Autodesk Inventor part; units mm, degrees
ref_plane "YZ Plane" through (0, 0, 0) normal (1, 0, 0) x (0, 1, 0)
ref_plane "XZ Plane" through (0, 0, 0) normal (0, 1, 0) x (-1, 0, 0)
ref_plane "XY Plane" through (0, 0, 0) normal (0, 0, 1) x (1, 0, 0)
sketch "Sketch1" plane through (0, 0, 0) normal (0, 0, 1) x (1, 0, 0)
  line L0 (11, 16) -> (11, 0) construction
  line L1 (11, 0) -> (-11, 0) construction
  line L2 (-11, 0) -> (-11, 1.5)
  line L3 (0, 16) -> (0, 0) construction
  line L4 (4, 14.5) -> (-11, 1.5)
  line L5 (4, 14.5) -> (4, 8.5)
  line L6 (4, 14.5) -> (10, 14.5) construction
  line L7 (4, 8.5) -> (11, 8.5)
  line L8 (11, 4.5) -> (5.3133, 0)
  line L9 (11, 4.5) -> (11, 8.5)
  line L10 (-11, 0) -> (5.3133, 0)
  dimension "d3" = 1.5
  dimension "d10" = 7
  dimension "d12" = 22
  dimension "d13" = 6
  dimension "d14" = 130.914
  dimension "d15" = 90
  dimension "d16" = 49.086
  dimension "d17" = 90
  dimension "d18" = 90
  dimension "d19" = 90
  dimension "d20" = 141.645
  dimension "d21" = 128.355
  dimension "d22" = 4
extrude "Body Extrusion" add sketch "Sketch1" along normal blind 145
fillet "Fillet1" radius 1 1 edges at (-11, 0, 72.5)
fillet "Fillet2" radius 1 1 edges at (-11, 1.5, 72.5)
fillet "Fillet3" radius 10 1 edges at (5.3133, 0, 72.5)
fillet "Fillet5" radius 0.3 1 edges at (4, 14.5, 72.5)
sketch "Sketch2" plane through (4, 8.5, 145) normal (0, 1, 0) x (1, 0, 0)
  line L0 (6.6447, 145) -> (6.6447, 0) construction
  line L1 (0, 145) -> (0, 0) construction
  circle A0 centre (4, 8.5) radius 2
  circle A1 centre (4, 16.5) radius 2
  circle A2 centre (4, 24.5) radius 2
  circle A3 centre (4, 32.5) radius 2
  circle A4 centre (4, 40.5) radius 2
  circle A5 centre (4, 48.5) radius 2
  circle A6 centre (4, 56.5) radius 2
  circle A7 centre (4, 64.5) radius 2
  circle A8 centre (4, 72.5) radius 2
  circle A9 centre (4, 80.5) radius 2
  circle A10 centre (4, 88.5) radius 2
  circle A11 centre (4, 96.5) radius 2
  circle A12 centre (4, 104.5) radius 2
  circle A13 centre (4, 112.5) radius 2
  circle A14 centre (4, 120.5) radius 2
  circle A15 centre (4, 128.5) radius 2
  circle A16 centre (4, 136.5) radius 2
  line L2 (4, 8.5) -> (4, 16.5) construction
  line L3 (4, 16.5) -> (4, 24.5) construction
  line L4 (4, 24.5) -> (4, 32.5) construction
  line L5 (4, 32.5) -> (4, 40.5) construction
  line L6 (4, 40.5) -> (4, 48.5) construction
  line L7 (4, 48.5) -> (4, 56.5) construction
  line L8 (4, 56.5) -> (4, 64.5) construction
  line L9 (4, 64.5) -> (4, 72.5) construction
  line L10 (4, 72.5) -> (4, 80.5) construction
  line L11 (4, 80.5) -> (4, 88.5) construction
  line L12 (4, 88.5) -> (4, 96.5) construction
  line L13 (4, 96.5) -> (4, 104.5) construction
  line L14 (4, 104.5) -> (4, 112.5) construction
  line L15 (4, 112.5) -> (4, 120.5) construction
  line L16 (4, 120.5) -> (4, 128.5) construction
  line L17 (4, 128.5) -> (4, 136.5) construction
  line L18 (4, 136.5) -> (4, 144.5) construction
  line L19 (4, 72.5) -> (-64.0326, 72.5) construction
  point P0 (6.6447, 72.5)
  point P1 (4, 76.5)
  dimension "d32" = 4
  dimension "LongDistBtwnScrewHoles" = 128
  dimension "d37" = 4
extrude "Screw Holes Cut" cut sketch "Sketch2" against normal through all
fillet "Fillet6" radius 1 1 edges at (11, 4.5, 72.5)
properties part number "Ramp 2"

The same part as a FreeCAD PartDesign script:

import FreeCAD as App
import Part
import Sketcher

V = App.Vector
Q = App.Units.Quantity


def edges_at(feature, points):
    """Names of the edges that pass closest to the given points."""
    edges = feature.Shape.Edges
    near = lambda p: min(range(len(edges)), key=lambda i: edges[i].distToShape(Part.Vertex(*p))[0])
    return sorted({f"Edge{near(p) + 1}" for p in points})

doc = App.newDocument("Part")
body = doc.addObject("PartDesign::Body", "Body")

# Sketch on XY plane
sketch1 = body.newObject("Sketcher::SketchObject", "Sketch")
sketch1.AttachmentSupport = (doc.getObject("XY_Plane"), [""])
sketch1.MapMode = "FlatFace"
sketch1.addGeometry([
    Part.LineSegment(V(-11, 1.5, 0), V(-11, 0, 0)),  # 0
    Part.LineSegment(V(-11, 0, 0), V(5.3, 0, 0)),  # 1
    Part.LineSegment(V(5.3, 0, 0), V(11, 4.5, 0)),  # 2
    Part.LineSegment(V(11, 4.5, 0), V(11, 8.5, 0)),  # 3
    Part.LineSegment(V(11, 8.5, 0), V(4, 8.5, 0)),  # 4
    Part.LineSegment(V(4, 8.5, 0), V(4, 14.5, 0)),  # 5
    Part.LineSegment(V(4, 14.5, 0), V(-11, 1.5, 0)),  # 6
], False)
sketch1.addConstraint([
    Sketcher.Constraint("Coincident", 0, 2, 1, 1),
    Sketcher.Constraint("Coincident", 1, 2, 2, 1),
    Sketcher.Constraint("Coincident", 2, 2, 3, 1),
    Sketcher.Constraint("Coincident", 3, 2, 4, 1),
    Sketcher.Constraint("Coincident", 4, 2, 5, 1),
    Sketcher.Constraint("Coincident", 5, 2, 6, 1),
    Sketcher.Constraint("Coincident", 6, 2, 0, 1),
    Sketcher.Constraint("Vertical", 0),
    Sketcher.Constraint("Horizontal", 1),
    Sketcher.Constraint("Vertical", 3),
    Sketcher.Constraint("Horizontal", 4),
    Sketcher.Constraint("Vertical", 5),
    Sketcher.Constraint("PointOnObject", 0, 2, -1),
    Sketcher.Constraint("DistanceX", 4, 2, 4, 1, Q("7 mm")),
    Sketcher.Constraint("DistanceY", 3, 1, 3, 2, Q("4 mm")),
    Sketcher.Constraint("DistanceY", 5, 1, 5, 2, Q("6 mm")),
    Sketcher.Constraint("DistanceY", 0, 2, 0, 1, Q("1.5 mm")),
    Sketcher.Constraint("DistanceX", -1, 1, 4, 2, Q("4 mm")),
    Sketcher.Constraint("DistanceX", 0, 2, 2, 2, Q("22 mm")),
    Sketcher.Constraint("DistanceY", 6, 2, 4, 2, Q("7 mm")),
    Sketcher.Constraint("DistanceX", 1, 1, 1, 2, Q("16.3133 mm")),
])
pad1 = body.newObject("PartDesign::Pad", "Pad")
pad1.Profile = sketch1
pad1.Length = 145
doc.recompute()

fillet = body.newObject("PartDesign::Fillet", "Fillet")
fillet.Base = (pad1, edges_at(pad1, [(-11, 0, 72.5)]))
fillet.Radius = 1
doc.recompute()

fillet2 = body.newObject("PartDesign::Fillet", "Fillet001")
fillet2.Base = (fillet, edges_at(fillet, [(-11, 1.5, 72.5)]))
fillet2.Radius = 1
doc.recompute()

fillet3 = body.newObject("PartDesign::Fillet", "Fillet002")
fillet3.Base = (fillet2, edges_at(fillet2, [(5.313, 0, 72.5)]))
fillet3.Radius = 10
doc.recompute()

fillet4 = body.newObject("PartDesign::Fillet", "Fillet003")
fillet4.Base = (fillet3, edges_at(fillet3, [(4, 14.5, 72.5)]))
fillet4.Radius = 0.3

# Sketch on XZ plane
sketch2 = body.newObject("Sketcher::SketchObject", "Sketch001")
sketch2.AttachmentSupport = (doc.getObject("XZ_Plane"), [""])
sketch2.MapMode = "FlatFace"
sketch2.AttachmentOffset = App.Placement(V(0, 0, -8.5), App.Rotation())
sketch2.addGeometry([
    Part.Circle(V(8, 136.5, 0), V(0, 0, 1), 2),  # 0
    Part.Circle(V(8, 128.5, 0), V(0, 0, 1), 2),  # 1
    Part.Circle(V(8, 120.5, 0), V(0, 0, 1), 2),  # 2
    Part.Circle(V(8, 112.5, 0), V(0, 0, 1), 2),  # 3
    Part.Circle(V(8, 104.5, 0), V(0, 0, 1), 2),  # 4
    Part.Circle(V(8, 96.5, 0), V(0, 0, 1), 2),  # 5
    Part.Circle(V(8, 88.5, 0), V(0, 0, 1), 2),  # 6
    Part.Circle(V(8, 80.5, 0), V(0, 0, 1), 2),  # 7
    Part.Circle(V(8, 72.5, 0), V(0, 0, 1), 2),  # 8
    Part.Circle(V(8, 64.5, 0), V(0, 0, 1), 2),  # 9
    Part.Circle(V(8, 56.5, 0), V(0, 0, 1), 2),  # 10
    Part.Circle(V(8, 48.5, 0), V(0, 0, 1), 2),  # 11
    Part.Circle(V(8, 40.5, 0), V(0, 0, 1), 2),  # 12
    Part.Circle(V(8, 32.5, 0), V(0, 0, 1), 2),  # 13
    Part.Circle(V(8, 24.5, 0), V(0, 0, 1), 2),  # 14
    Part.Circle(V(8, 16.5, 0), V(0, 0, 1), 2),  # 15
    Part.Circle(V(8, 8.5, 0), V(0, 0, 1), 2),  # 16
], False)
sketch2.addConstraint([
    Sketcher.Constraint("Equal", 0, 1),
    Sketcher.Constraint("Equal", 1, 2),
    Sketcher.Constraint("Equal", 2, 3),
    Sketcher.Constraint("Equal", 3, 4),
    Sketcher.Constraint("Equal", 4, 5),
    Sketcher.Constraint("Equal", 5, 6),
    Sketcher.Constraint("Equal", 6, 7),
    Sketcher.Constraint("Equal", 7, 8),
    Sketcher.Constraint("Equal", 8, 9),
    Sketcher.Constraint("Equal", 9, 10),
    Sketcher.Constraint("Equal", 10, 11),
    Sketcher.Constraint("Equal", 11, 12),
    Sketcher.Constraint("Equal", 12, 13),
    Sketcher.Constraint("Equal", 13, 14),
    Sketcher.Constraint("Equal", 14, 15),
    Sketcher.Constraint("Equal", 15, 16),
    Sketcher.Constraint("Vertical", 0, 3, 1, 3),
    Sketcher.Constraint("Vertical", 1, 3, 2, 3),
    Sketcher.Constraint("Vertical", 2, 3, 3, 3),
    Sketcher.Constraint("Vertical", 3, 3, 4, 3),
    Sketcher.Constraint("Vertical", 4, 3, 5, 3),
    Sketcher.Constraint("Vertical", 5, 3, 6, 3),
    Sketcher.Constraint("Vertical", 6, 3, 7, 3),
    Sketcher.Constraint("Vertical", 7, 3, 8, 3),
    Sketcher.Constraint("Vertical", 8, 3, 9, 3),
    Sketcher.Constraint("Vertical", 9, 3, 10, 3),
    Sketcher.Constraint("Vertical", 10, 3, 11, 3),
    Sketcher.Constraint("Vertical", 11, 3, 12, 3),
    Sketcher.Constraint("Vertical", 12, 3, 13, 3),
    Sketcher.Constraint("Vertical", 13, 3, 14, 3),
    Sketcher.Constraint("Vertical", 14, 3, 15, 3),
    Sketcher.Constraint("Vertical", 15, 3, 16, 3),
    Sketcher.Constraint("Diameter", 0, Q("4 mm")),
    Sketcher.Constraint("DistanceX", -1, 1, 0, 3, Q("8 mm")),
    Sketcher.Constraint("DistanceY", 1, 3, 0, 3, Q("8 mm")),
    Sketcher.Constraint("DistanceY", 2, 3, 1, 3, Q("8 mm")),
    Sketcher.Constraint("DistanceY", 3, 3, 2, 3, Q("8 mm")),
    Sketcher.Constraint("DistanceY", 4, 3, 3, 3, Q("8 mm")),
    Sketcher.Constraint("DistanceY", 5, 3, 4, 3, Q("8 mm")),
    Sketcher.Constraint("DistanceY", 6, 3, 5, 3, Q("8 mm")),
    Sketcher.Constraint("DistanceY", 7, 3, 6, 3, Q("8 mm")),
    Sketcher.Constraint("DistanceY", 8, 3, 7, 3, Q("8 mm")),
    Sketcher.Constraint("DistanceY", 9, 3, 8, 3, Q("8 mm")),
    Sketcher.Constraint("DistanceY", 10, 3, 9, 3, Q("8 mm")),
    Sketcher.Constraint("DistanceY", 11, 3, 10, 3, Q("8 mm")),
    Sketcher.Constraint("DistanceY", 12, 3, 11, 3, Q("8 mm")),
    Sketcher.Constraint("DistanceY", 13, 3, 12, 3, Q("8 mm")),
    Sketcher.Constraint("DistanceY", 14, 3, 13, 3, Q("8 mm")),
    Sketcher.Constraint("DistanceY", 15, 3, 14, 3, Q("8 mm")),
    Sketcher.Constraint("DistanceY", 16, 3, 15, 3, Q("8 mm")),
    Sketcher.Constraint("DistanceY", -1, 1, 0, 3, Q("136.5 mm")),
])
pocket1 = body.newObject("PartDesign::Pocket", "Pocket")
pocket1.Profile = sketch2
pocket1.Type = "ThroughAll"
pocket1.Reversed = True
doc.recompute()

fillet5 = body.newObject("PartDesign::Fillet", "Fillet004")
fillet5.Base = (pocket1, edges_at(pocket1, [(11, 4.5, 72.5)]))
fillet5.Radius = 1

doc.recompute()
